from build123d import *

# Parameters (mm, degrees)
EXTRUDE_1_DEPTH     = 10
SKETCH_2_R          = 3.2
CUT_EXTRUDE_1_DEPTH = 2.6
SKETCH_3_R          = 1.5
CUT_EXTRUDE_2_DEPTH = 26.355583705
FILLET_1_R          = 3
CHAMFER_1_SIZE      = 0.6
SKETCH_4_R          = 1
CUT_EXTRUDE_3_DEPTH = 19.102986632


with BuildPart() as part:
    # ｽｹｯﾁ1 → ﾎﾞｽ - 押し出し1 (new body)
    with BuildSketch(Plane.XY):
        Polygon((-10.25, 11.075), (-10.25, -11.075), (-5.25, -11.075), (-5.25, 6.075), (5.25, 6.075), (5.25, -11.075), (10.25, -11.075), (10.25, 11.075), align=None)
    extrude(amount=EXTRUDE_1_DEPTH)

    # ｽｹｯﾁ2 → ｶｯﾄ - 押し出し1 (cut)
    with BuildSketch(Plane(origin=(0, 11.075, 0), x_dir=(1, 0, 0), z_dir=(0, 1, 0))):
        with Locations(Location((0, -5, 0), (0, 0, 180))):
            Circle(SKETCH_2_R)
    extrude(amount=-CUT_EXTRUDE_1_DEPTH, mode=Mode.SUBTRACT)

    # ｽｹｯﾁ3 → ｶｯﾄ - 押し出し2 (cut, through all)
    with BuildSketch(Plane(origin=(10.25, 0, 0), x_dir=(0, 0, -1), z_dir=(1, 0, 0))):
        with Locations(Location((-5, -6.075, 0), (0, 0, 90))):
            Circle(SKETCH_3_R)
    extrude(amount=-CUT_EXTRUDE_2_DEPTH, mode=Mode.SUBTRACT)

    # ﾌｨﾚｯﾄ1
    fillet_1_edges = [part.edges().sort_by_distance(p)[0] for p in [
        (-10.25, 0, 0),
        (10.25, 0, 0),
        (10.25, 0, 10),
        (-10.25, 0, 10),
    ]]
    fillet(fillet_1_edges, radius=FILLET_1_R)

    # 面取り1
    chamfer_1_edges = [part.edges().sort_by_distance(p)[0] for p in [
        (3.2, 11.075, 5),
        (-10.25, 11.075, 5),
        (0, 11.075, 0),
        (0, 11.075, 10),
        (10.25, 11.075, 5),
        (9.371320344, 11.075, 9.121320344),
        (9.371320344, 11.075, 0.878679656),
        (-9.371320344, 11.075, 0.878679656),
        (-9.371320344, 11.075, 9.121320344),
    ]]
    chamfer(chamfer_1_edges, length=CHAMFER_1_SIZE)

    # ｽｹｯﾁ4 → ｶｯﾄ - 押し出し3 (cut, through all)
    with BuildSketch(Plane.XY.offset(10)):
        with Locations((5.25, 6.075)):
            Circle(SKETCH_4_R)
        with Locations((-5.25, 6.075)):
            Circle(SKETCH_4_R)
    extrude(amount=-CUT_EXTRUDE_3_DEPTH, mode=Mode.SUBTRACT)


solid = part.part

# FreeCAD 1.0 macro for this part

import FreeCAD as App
import Part
import Sketcher


def edges_at(feature, points):
    """Names of the edges that pass closest to the given points."""
    edges = feature.Shape.Edges
    near = lambda p: min(range(len(edges)), key=lambda i: edges[i].distToShape(Part.Vertex(*p))[0])
    return sorted({f"Edge{near(p) + 1}" for p in points})

doc = App.newDocument("Part")
body = doc.addObject("PartDesign::Body", "Body")

# Sketch on XY plane
sketch1 = body.newObject("Sketcher::SketchObject", "Sketch")
sketch1.AttachmentSupport = (doc.getObject("XY_Plane"), [""])
sketch1.MapMode = "FlatFace"
sketch1.addGeometry([
    Part.LineSegment(App.Vector(-10, 11, 0), App.Vector(-10, -11, 0)),  # 0
    Part.LineSegment(App.Vector(-10, -11, 0), App.Vector(-5, -11, 0)),  # 1
    Part.LineSegment(App.Vector(-5, -11, 0), App.Vector(-5, 6, 0)),  # 2
    Part.LineSegment(App.Vector(-5, 6, 0), App.Vector(5, 6, 0)),  # 3
    Part.LineSegment(App.Vector(5, 6, 0), App.Vector(5, -11, 0)),  # 4
    Part.LineSegment(App.Vector(5, -11, 0), App.Vector(10, -11, 0)),  # 5
    Part.LineSegment(App.Vector(10, -11, 0), App.Vector(10, 11, 0)),  # 6
    Part.LineSegment(App.Vector(10, 11, 0), App.Vector(-10, 11, 0)),  # 7
], False)
sketch1.addConstraint([
    Sketcher.Constraint("Coincident", 0, 2, 1, 1),
    Sketcher.Constraint("Coincident", 1, 2, 2, 1),
    Sketcher.Constraint("Coincident", 2, 2, 3, 1),
    Sketcher.Constraint("Coincident", 3, 2, 4, 1),
    Sketcher.Constraint("Coincident", 4, 2, 5, 1),
    Sketcher.Constraint("Coincident", 5, 2, 6, 1),
    Sketcher.Constraint("Coincident", 6, 2, 7, 1),
    Sketcher.Constraint("Coincident", 7, 2, 0, 1),
    Sketcher.Constraint("Vertical", 0),
    Sketcher.Constraint("Horizontal", 1),
    Sketcher.Constraint("Vertical", 2),
    Sketcher.Constraint("Horizontal", 3),
    Sketcher.Constraint("Vertical", 4),
    Sketcher.Constraint("Horizontal", 5),
    Sketcher.Constraint("Vertical", 6),
    Sketcher.Constraint("Horizontal", 7),
    Sketcher.Constraint("Symmetric", 0, 2, 6, 2, -1, 1),
    Sketcher.Constraint("Symmetric", 1, 2, 4, 2, -2),
    Sketcher.Constraint("DistanceX", 1, 1, 1, 2, 5.0),
    Sketcher.Constraint("DistanceX", 3, 1, 3, 2, 10.5),
    Sketcher.Constraint("DistanceY", 3, 2, 6, 2, 5.0),
    Sketcher.Constraint("DistanceY", 0, 2, 0, 1, 22.15),
])
pad1 = body.newObject("PartDesign::Pad", "Pad")
pad1.Profile = sketch1
pad1.Length = 10

# Sketch on XZ plane
sketch2 = body.newObject("Sketcher::SketchObject", "Sketch001")
sketch2.AttachmentSupport = (doc.getObject("XZ_Plane"), [""])
sketch2.MapMode = "FlatFace"
sketch2.AttachmentOffset = App.Placement(App.Vector(0, 0, -11.075), App.Rotation())
sketch2.addGeometry(Part.Circle(App.Vector(0, 5, 0), App.Vector(0, 0, 1), 3.2), False)
sketch2.addConstraint([
    Sketcher.Constraint("PointOnObject", 0, 3, -2),
    Sketcher.Constraint("Diameter", 0, 6.4),
    Sketcher.Constraint("DistanceY", -1, 1, 0, 3, 5.0),
])
pocket1 = body.newObject("PartDesign::Pocket", "Pocket")
pocket1.Profile = sketch2
pocket1.Length = 2.6
pocket1.Reversed = True

# Sketch on YZ plane
sketch3 = body.newObject("Sketcher::SketchObject", "Sketch002")
sketch3.AttachmentSupport = (doc.getObject("YZ_Plane"), [""])
sketch3.MapMode = "FlatFace"
sketch3.AttachmentOffset = App.Placement(App.Vector(0, 0, 10.25), App.Rotation())
sketch3.addGeometry(Part.Circle(App.Vector(-6.1, 5, 0), App.Vector(0, 0, 1), 1.5), False)
sketch3.addConstraint([
    Sketcher.Constraint("Diameter", 0, 3.0),
    Sketcher.Constraint("DistanceY", -1, 1, 0, 3, 5.0),
    Sketcher.Constraint("DistanceX", 0, 3, -1, 1, 6.075),
])
pocket2 = body.newObject("PartDesign::Pocket", "Pocket001")
pocket2.Profile = sketch3
pocket2.Type = "ThroughAll"
doc.recompute()

fillet = body.newObject("PartDesign::Fillet", "Fillet")
fillet.Base = (pocket2, edges_at(pocket2, [
    (-10.25, 0, 0),
    (10.25, 0, 0),
    (10.25, 0, 10),
    (-10.25, 0, 10),
]))
fillet.Radius = 3
doc.recompute()

chamfer = body.newObject("PartDesign::Chamfer", "Chamfer")
chamfer.Base = (fillet, edges_at(fillet, [
    (3.2, 11.075, 5),
    (-10.25, 11.075, 5),
    (0, 11.075, 0),
    (0, 11.075, 10),
    (10.25, 11.075, 5),
    (9.371, 11.075, 9.121),
    (9.371, 11.075, 0.879),
    (-9.371, 11.075, 0.879),
    (-9.371, 11.075, 9.121),
]))
chamfer.Size = 0.6

# Sketch on XY plane
sketch4 = body.newObject("Sketcher::SketchObject", "Sketch003")
sketch4.AttachmentSupport = (doc.getObject("XY_Plane"), [""])
sketch4.MapMode = "FlatFace"
sketch4.AttachmentOffset = App.Placement(App.Vector(0, 0, 10), App.Rotation())
sketch4.addGeometry([
    Part.Circle(App.Vector(5.2, 6.1, 0), App.Vector(0, 0, 1), 1),
    Part.Circle(App.Vector(-5.2, 6.1, 0), App.Vector(0, 0, 1), 1),
], False)
sketch4.addConstraint([
    Sketcher.Constraint("Equal", 0, 1),
    Sketcher.Constraint("Symmetric", 0, 3, 1, 3, -2),
    Sketcher.Constraint("Diameter", 0, 2.0),
    Sketcher.Constraint("DistanceX", 1, 3, 0, 3, 10.5),
    Sketcher.Constraint("DistanceY", -1, 1, 0, 3, 6.075),
])
pocket3 = body.newObject("PartDesign::Pocket", "Pocket002")
pocket3.Profile = sketch4
pocket3.Type = "ThroughAll"

doc.recompute()
